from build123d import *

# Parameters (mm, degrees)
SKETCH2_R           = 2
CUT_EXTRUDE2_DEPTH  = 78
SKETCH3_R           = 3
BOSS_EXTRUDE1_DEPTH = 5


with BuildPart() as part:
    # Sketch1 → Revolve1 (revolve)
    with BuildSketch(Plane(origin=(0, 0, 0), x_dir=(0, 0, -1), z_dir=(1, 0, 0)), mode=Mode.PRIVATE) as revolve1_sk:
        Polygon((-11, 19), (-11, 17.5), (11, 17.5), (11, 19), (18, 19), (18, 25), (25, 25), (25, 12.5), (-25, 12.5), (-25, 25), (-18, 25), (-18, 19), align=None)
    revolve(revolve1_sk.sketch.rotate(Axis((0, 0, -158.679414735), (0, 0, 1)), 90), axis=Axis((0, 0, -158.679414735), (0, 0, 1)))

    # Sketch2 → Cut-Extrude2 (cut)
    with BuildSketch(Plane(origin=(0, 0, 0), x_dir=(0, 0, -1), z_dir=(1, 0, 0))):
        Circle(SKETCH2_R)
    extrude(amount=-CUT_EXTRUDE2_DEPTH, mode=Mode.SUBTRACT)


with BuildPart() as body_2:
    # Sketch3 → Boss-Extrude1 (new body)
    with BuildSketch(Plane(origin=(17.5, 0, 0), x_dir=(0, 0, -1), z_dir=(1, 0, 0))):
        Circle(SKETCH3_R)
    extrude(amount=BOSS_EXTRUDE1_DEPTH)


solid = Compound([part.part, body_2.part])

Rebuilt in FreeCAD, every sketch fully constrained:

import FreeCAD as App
import Part
import Sketcher
Q = App.Units.Quantity


def add_polygon(sketch, points):
    """Adds a closed chain of lines whose ends are joined by coincident constraints."""
    first, n = sketch.GeometryCount, len(points)
    for a, b in zip(points, points[1:] + points[:1]):
        sketch.addGeometry(Part.LineSegment(App.Vector(*a, 0), App.Vector(*b, 0)), False)
    for i in range(n):
        sketch.addConstraint(Sketcher.Constraint("Coincident", first + i, 2, first + (i + 1) % n, 1))

doc = App.newDocument("Part")
body = doc.addObject("PartDesign::Body", "Body")

# Sketch on YZ plane
sketch1 = doc.addObject("Sketcher::SketchObject", "Sketch")
body.addObject(sketch1)
sketch1.AttachmentSupport = (doc.YZ_Plane, [""])
sketch1.MapMode = "FlatFace"
add_polygon(sketch1, [(17.5, 11), (19, 11), (19, 18), (25, 18), (25, 25), (12.5, 25), (12.5, -25), (25, -25), (25, -18), (19, -18), (19, -11), (17.5, -11)])  # lines 0-11
sketch1.addConstraint([
    Sketcher.Constraint("Horizontal", 0),
    Sketcher.Constraint("Vertical", 1),
    Sketcher.Constraint("Horizontal", 2),
    Sketcher.Constraint("Vertical", 3),
    Sketcher.Constraint("Horizontal", 4),
    Sketcher.Constraint("Vertical", 5),
    Sketcher.Constraint("Horizontal", 6),
    Sketcher.Constraint("Vertical", 7),
    Sketcher.Constraint("Horizontal", 8),
    Sketcher.Constraint("Vertical", 9),
    Sketcher.Constraint("Horizontal", 10),
    Sketcher.Constraint("Vertical", 11),
    Sketcher.Constraint("Symmetric", 3, 2, 6, 2, -1),
    Sketcher.Constraint("Symmetric", 1, 2, 8, 2, -1),
    Sketcher.Constraint("Equal", 1, 3),
    Sketcher.Constraint("Equal", 7, 9),
    Sketcher.Constraint("DistanceX", 2, 1, 2, 2, Q("6 mm")),
    Sketcher.Constraint("DistanceY", 1, 1, 1, 2, Q("7 mm")),
    Sketcher.Constraint("DistanceY", 5, 2, 5, 1, Q("50 mm")),
    Sketcher.Constraint("DistanceX", 0, 1, 0, 2, Q("1.5 mm")),
    Sketcher.Constraint("DistanceX", 4, 2, 4, 1, Q("12.5 mm")),
    Sketcher.Constraint("DistanceX", -1, 1, 0, 2, Q("19 mm")),
])
revolution = doc.addObject("PartDesign::Revolution", "Revolution")
body.addObject(revolution)
revolution.Profile = sketch1
revolution.ReferenceAxis = (sketch1, ["V_Axis"])
revolution.Angle = 360

# Sketch on YZ plane
sketch2 = doc.addObject("Sketcher::SketchObject", "Sketch001")
body.addObject(sketch2)
sketch2.AttachmentSupport = (doc.YZ_Plane, [""])
sketch2.MapMode = "FlatFace"
sketch2.addGeometry(Part.Circle(App.Vector(0, 0, 0), App.Vector(0, 0, 1), 2), False)
sketch2.addConstraint([
    Sketcher.Constraint("Coincident", 0, 3, -1, 1),
    Sketcher.Constraint("Diameter", 0, Q("4 mm")),
])
pocket1 = doc.addObject("PartDesign::Pocket", "Pocket")
body.addObject(pocket1)
pocket1.Profile = sketch2
pocket1.Length = 78
body2 = doc.addObject("PartDesign::Body", "Body001")

# Sketch on YZ plane
sketch3 = doc.addObject("Sketcher::SketchObject", "Sketch002")
body2.addObject(sketch3)
sketch3.AttachmentSupport = (doc.getObject("YZ_Plane001"), [""])
sketch3.MapMode = "FlatFace"
sketch3.AttachmentOffset = App.Placement(App.Vector(0, 0, 17.5), App.Rotation())
sketch3.addGeometry(Part.Circle(App.Vector(0, 0, 0), App.Vector(0, 0, 1), 3), False)
sketch3.addConstraint([
    Sketcher.Constraint("Coincident", 0, 3, -1, 1),
    Sketcher.Constraint("Diameter", 0, Q("6 mm")),
])
pad1 = doc.addObject("PartDesign::Pad", "Pad")
body2.addObject(pad1)
pad1.Profile = sketch3
pad1.Length = 5

doc.recompute()
